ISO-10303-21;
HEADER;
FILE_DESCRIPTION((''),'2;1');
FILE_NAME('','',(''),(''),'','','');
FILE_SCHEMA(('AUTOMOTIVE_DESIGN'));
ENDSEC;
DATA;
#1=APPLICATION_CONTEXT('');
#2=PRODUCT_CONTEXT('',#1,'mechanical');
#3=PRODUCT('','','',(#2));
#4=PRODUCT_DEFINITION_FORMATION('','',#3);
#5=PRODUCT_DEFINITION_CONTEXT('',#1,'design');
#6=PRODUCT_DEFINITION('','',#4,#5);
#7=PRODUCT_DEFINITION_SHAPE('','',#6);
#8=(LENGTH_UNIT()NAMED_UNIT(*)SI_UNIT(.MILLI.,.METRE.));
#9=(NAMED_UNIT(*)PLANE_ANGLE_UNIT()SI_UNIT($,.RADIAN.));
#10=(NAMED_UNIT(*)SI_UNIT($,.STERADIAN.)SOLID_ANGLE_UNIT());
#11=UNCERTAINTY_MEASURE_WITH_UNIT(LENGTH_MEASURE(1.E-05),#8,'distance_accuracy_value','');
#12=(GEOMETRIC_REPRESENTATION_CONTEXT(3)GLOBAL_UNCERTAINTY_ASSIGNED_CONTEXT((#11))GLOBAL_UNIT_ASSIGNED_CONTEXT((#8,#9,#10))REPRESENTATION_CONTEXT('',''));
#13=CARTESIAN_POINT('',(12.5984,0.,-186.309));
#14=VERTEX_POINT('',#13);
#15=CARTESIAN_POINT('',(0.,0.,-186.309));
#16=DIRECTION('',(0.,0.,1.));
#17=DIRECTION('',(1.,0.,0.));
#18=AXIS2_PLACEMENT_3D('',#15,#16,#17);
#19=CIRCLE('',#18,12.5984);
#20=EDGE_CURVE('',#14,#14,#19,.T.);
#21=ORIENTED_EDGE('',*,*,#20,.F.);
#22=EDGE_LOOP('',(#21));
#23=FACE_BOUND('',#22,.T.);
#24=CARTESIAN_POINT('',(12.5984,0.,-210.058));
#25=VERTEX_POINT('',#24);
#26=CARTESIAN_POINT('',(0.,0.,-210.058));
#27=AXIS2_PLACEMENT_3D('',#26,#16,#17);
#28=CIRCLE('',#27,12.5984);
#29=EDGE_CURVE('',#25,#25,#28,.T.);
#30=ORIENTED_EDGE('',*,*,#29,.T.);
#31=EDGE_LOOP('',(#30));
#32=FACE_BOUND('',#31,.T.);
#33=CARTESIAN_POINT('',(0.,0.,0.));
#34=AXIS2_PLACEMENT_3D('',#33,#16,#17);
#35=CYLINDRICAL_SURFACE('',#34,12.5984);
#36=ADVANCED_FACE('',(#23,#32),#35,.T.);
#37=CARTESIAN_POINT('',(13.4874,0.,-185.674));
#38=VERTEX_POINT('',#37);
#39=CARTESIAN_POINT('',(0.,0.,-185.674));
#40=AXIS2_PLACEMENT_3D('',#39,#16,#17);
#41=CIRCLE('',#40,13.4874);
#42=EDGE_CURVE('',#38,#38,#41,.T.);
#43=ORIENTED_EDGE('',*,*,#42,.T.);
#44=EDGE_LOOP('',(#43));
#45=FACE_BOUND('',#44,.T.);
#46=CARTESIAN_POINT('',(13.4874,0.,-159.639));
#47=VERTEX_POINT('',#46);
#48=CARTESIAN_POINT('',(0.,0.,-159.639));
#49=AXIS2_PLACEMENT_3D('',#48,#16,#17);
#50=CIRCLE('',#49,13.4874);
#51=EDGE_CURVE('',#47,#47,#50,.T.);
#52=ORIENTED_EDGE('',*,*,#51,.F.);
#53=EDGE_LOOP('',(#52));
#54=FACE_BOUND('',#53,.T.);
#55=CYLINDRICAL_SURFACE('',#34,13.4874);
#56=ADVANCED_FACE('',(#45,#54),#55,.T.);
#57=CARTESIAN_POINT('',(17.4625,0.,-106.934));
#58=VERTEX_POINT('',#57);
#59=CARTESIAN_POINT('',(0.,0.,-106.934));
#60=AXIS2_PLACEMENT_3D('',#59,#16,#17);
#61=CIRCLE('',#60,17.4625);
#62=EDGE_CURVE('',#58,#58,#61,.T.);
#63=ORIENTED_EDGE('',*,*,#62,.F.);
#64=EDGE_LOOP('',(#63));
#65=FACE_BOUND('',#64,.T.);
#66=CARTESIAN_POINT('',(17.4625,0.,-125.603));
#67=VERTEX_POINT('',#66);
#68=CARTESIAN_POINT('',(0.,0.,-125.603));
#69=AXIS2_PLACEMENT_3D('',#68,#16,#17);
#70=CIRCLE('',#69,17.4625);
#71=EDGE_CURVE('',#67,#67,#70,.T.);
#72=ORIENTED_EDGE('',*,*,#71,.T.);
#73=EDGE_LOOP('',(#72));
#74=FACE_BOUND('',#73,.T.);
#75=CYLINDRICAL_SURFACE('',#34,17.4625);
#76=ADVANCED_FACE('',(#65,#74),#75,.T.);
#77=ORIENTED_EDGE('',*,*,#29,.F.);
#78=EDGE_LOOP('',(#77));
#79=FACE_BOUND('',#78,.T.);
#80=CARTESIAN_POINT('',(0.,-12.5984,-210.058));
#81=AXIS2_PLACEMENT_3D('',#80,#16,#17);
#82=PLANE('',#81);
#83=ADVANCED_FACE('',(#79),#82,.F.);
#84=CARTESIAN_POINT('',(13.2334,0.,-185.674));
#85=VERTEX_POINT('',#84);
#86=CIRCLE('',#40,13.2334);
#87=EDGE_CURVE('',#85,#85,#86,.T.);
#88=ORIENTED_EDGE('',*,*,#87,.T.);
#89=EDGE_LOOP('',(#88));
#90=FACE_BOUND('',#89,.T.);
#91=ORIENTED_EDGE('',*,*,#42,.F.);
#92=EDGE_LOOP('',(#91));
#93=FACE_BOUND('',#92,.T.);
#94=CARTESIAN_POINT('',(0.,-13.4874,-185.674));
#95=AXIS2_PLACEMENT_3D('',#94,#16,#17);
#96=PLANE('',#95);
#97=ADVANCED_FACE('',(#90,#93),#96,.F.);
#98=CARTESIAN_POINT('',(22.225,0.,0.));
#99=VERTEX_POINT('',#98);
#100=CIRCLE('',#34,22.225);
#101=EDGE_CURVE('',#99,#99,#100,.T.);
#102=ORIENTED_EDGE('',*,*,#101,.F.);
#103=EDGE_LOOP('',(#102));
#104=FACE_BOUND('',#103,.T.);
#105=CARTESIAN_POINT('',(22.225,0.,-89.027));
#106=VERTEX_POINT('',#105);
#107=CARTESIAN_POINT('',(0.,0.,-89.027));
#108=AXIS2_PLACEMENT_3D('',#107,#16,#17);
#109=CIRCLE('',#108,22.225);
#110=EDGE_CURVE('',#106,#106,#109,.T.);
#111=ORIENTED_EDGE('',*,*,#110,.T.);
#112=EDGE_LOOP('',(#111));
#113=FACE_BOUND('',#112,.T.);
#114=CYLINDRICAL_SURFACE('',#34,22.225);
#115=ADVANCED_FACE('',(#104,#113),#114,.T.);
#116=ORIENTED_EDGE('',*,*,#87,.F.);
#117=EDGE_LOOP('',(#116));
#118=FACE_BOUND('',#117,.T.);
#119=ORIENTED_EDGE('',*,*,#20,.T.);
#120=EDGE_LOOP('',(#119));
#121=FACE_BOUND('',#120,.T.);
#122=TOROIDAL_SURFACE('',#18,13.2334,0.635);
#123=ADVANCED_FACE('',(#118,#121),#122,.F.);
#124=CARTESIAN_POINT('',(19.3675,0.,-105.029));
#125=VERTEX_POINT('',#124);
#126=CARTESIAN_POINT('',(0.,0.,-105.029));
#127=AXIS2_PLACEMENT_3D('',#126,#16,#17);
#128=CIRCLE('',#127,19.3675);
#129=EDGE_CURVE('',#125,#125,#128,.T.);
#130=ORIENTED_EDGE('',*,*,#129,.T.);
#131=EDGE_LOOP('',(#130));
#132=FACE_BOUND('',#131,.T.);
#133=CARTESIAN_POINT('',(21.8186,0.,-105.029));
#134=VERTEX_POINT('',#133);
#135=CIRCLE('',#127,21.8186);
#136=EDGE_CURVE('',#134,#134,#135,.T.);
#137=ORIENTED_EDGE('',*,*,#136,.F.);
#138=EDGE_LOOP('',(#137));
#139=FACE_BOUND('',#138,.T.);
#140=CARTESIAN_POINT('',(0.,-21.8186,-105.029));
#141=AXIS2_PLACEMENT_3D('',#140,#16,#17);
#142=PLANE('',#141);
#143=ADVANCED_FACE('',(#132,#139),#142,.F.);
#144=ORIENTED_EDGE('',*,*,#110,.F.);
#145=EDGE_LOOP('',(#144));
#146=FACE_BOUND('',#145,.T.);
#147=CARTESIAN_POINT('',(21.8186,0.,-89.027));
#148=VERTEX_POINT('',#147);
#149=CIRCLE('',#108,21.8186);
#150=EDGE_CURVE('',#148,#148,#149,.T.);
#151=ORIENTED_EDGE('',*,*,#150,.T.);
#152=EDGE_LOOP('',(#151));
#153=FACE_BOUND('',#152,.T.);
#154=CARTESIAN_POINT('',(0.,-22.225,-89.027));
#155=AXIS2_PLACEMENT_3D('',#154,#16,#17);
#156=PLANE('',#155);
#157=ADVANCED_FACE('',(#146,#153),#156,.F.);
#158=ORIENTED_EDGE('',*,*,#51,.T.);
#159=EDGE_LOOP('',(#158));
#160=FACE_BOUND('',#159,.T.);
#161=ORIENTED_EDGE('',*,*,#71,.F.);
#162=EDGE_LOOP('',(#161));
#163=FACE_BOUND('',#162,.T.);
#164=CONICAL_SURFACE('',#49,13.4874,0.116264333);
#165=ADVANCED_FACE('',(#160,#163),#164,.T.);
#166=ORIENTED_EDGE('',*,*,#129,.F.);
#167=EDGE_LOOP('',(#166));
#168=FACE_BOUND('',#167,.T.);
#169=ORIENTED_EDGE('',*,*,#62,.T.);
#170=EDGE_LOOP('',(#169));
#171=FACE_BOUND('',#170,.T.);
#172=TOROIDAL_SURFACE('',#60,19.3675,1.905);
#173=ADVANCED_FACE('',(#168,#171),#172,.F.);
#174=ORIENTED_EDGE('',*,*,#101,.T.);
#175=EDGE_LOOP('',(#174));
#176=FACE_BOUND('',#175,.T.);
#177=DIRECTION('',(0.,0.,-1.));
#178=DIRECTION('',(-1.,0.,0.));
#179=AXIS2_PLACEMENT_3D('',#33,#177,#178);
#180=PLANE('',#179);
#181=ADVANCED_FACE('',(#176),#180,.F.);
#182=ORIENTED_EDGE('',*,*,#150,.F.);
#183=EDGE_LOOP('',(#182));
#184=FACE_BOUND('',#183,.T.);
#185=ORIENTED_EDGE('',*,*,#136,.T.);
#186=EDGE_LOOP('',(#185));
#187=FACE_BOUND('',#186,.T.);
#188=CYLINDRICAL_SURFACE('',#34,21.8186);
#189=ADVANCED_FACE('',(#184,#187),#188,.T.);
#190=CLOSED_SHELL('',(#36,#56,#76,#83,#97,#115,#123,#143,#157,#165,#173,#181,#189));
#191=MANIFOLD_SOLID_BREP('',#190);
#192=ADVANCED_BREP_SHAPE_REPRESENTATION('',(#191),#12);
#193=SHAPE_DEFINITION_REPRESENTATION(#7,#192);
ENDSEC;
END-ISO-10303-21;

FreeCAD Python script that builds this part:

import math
import FreeCAD as App
import Part
import Sketcher
Q = App.Units.Quantity

doc = App.newDocument("Part")
body = doc.addObject("PartDesign::Body", "Body")

# Sketch on YZ plane
sketch1 = doc.addObject("Sketcher::SketchObject", "Sketch")
body.addObject(sketch1)
sketch1.AttachmentSupport = (doc.YZ_Plane, [""])
sketch1.MapMode = "FlatFace"
sketch1.addGeometry(Part.LineSegment(App.Vector(22.23, 0, 0), App.Vector(0, 0, 0)), False)
sketch1.addGeometry(Part.LineSegment(App.Vector(0, 0, 0), App.Vector(0, -210.06, 0)), False)
sketch1.addGeometry(Part.LineSegment(App.Vector(0, -210.06, 0), App.Vector(12.6, -210.06, 0)), False)
sketch1.addGeometry(Part.LineSegment(App.Vector(12.6, -210.06, 0), App.Vector(12.6, -186.31, 0)), False)
sketch1.addGeometry(Part.ArcOfCircle(Part.Circle(App.Vector(13.23, -186.31, 0), App.Vector(0, 0, 1), 0.64), math.radians(90), math.radians(180)), False)
sketch1.addGeometry(Part.LineSegment(App.Vector(13.23, -185.67, 0), App.Vector(13.49, -185.67, 0)), False)
sketch1.addGeometry(Part.LineSegment(App.Vector(13.49, -185.67, 0), App.Vector(13.49, -159.64, 0)), False)
sketch1.addGeometry(Part.LineSegment(App.Vector(13.49, -159.64, 0), App.Vector(17.46, -125.6, 0)), False)
sketch1.addGeometry(Part.LineSegment(App.Vector(17.46, -125.6, 0), App.Vector(17.46, -106.93, 0)), False)
sketch1.addGeometry(Part.ArcOfCircle(Part.Circle(App.Vector(19.37, -106.93, 0), App.Vector(0, 0, 1), 1.91), math.radians(90), math.radians(180)), False)
sketch1.addGeometry(Part.LineSegment(App.Vector(19.37, -105.03, 0), App.Vector(21.82, -105.03, 0)), False)
sketch1.addGeometry(Part.LineSegment(App.Vector(21.82, -105.03, 0), App.Vector(21.82, -89.03, 0)), False)
sketch1.addGeometry(Part.LineSegment(App.Vector(21.82, -89.03, 0), App.Vector(22.23, -89.03, 0)), False)
sketch1.addGeometry(Part.LineSegment(App.Vector(22.23, -89.03, 0), App.Vector(22.23, 0, 0)), False)
sketch1.addConstraint(Sketcher.Constraint("Coincident", 0, 2, 1, 1))
sketch1.addConstraint(Sketcher.Constraint("Coincident", 1, 2, 2, 1))
sketch1.addConstraint(Sketcher.Constraint("Coincident", 2, 2, 3, 1))
sketch1.addConstraint(Sketcher.Constraint("Tangent", 3, 2, 4, 2))
sketch1.addConstraint(Sketcher.Constraint("Tangent", 4, 1, 5, 1))
sketch1.addConstraint(Sketcher.Constraint("Coincident", 5, 2, 6, 1))
sketch1.addConstraint(Sketcher.Constraint("Coincident", 6, 2, 7, 1))
sketch1.addConstraint(Sketcher.Constraint("Coincident", 7, 2, 8, 1))
sketch1.addConstraint(Sketcher.Constraint("Tangent", 8, 2, 9, 2))
sketch1.addConstraint(Sketcher.Constraint("Tangent", 9, 1, 10, 1))
sketch1.addConstraint(Sketcher.Constraint("Coincident", 10, 2, 11, 1))
sketch1.addConstraint(Sketcher.Constraint("Coincident", 11, 2, 12, 1))
sketch1.addConstraint(Sketcher.Constraint("Coincident", 12, 2, 13, 1))
sketch1.addConstraint(Sketcher.Constraint("Coincident", 13, 2, 0, 1))
sketch1.addConstraint(Sketcher.Constraint("Horizontal", 0))
sketch1.addConstraint(Sketcher.Constraint("Vertical", 1))
sketch1.addConstraint(Sketcher.Constraint("Horizontal", 2))
sketch1.addConstraint(Sketcher.Constraint("Vertical", 3))
sketch1.addConstraint(Sketcher.Constraint("Horizontal", 5))
sketch1.addConstraint(Sketcher.Constraint("Vertical", 6))
sketch1.addConstraint(Sketcher.Constraint("Vertical", 8))
sketch1.addConstraint(Sketcher.Constraint("Horizontal", 10))
sketch1.addConstraint(Sketcher.Constraint("Vertical", 11))
sketch1.addConstraint(Sketcher.Constraint("Horizontal", 12))
sketch1.addConstraint(Sketcher.Constraint("Vertical", 13))
sketch1.addConstraint(Sketcher.Constraint("Coincident", 0, 2, -1, 1))
sketch1.addConstraint(Sketcher.Constraint("Radius", 4, Q("0.025 in")))
sketch1.addConstraint(Sketcher.Constraint("Radius", 9, Q("0.075 in")))
sketch1.addConstraint(Sketcher.Constraint("DistanceX", 5, 1, 5, 2, Q("0.01 in")))
sketch1.addConstraint(Sketcher.Constraint("DistanceY", 1, 2, 1, 1, Q("8.27 in")))
sketch1.addConstraint(Sketcher.Constraint("DistanceY", 11, 1, 11, 2, Q("0.63 in")))
sketch1.addConstraint(Sketcher.Constraint("DistanceY", 4, 1, 9, 3, Q("3.1 in")))
sketch1.addConstraint(Sketcher.Constraint("DistanceX", 0, 2, 0, 1, Q("0.875 in")))
sketch1.addConstraint(Sketcher.Constraint("DistanceX", 2, 1, 2, 2, Q("0.496 in")))
sketch1.addConstraint(Sketcher.Constraint("DistanceX", 12, 1, 12, 2, Q("0.016 in")))
sketch1.addConstraint(Sketcher.Constraint("DistanceY", 3, 1, 3, 2, Q("0.935 in")))
sketch1.addConstraint(Sketcher.Constraint("DistanceY", 6, 1, 6, 2, Q("1.025 in")))
sketch1.addConstraint(Sketcher.Constraint("DistanceY", 8, 1, 8, 2, Q("0.735 in")))
sketch1.addConstraint(Sketcher.Constraint("DistanceX", 10, 1, 10, 2, Q("0.0965 in")))
revolution = doc.addObject("PartDesign::Revolution", "Revolution")
body.addObject(revolution)
revolution.Profile = sketch1
revolution.ReferenceAxis = (sketch1, ["V_Axis"])
revolution.Angle = 360

doc.recompute()
